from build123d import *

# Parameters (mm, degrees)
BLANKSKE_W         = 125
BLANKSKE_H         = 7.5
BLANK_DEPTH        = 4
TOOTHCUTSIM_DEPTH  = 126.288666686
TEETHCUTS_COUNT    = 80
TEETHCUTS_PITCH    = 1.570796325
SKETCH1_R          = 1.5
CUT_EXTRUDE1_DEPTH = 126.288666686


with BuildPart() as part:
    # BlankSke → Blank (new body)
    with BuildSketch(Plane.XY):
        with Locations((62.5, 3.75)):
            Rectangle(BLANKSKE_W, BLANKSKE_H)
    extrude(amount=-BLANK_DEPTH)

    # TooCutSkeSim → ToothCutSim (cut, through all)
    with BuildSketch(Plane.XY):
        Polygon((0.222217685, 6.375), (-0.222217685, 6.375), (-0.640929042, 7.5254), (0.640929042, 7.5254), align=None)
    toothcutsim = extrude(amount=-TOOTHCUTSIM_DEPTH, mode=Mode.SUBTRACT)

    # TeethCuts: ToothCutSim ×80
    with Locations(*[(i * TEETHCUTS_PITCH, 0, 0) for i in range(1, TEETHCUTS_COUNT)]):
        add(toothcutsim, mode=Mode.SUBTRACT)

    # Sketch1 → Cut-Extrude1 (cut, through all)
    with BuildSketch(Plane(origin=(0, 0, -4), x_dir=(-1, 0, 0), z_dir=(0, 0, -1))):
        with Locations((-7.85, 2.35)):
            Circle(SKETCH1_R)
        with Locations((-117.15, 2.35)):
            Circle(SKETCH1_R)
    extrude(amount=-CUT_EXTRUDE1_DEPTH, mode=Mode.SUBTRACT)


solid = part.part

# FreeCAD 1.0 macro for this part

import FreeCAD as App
import Part
import Sketcher
Q = App.Units.Quantity

doc = App.newDocument("Part")
body = doc.addObject("PartDesign::Body", "Body")

sketch1 = body.newObject("Sketcher::SketchObject", "Sketch")
sketch1.AttachmentSupport = (doc.getObject("XY_Plane"), [""])
sketch1.MapMode = "FlatFace"
sketch1.addGeometry(Part.LineSegment(App.Vector(0, 7.5, 0), App.Vector(0, 0, 0)), False)
sketch1.addGeometry(Part.LineSegment(App.Vector(0, 0, 0), App.Vector(125, 0, 0)), False)
sketch1.addGeometry(Part.LineSegment(App.Vector(125, 0, 0), App.Vector(125, 7.5, 0)), False)
sketch1.addGeometry(Part.LineSegment(App.Vector(125, 7.5, 0), App.Vector(0, 7.5, 0)), False)
sketch1.addConstraint(Sketcher.Constraint("Coincident", 0, 2, 1, 1))
sketch1.addConstraint(Sketcher.Constraint("Coincident", 1, 2, 2, 1))
sketch1.addConstraint(Sketcher.Constraint("Coincident", 2, 2, 3, 1))
sketch1.addConstraint(Sketcher.Constraint("Coincident", 3, 2, 0, 1))
sketch1.addConstraint(Sketcher.Constraint("Vertical", 0))
sketch1.addConstraint(Sketcher.Constraint("Horizontal", 1))
sketch1.addConstraint(Sketcher.Constraint("Vertical", 2))
sketch1.addConstraint(Sketcher.Constraint("Horizontal", 3))
sketch1.addConstraint(Sketcher.Constraint("Coincident", 0, 2, -1, 1))
sketch1.addConstraint(Sketcher.Constraint("DistanceX", 1, 1, 1, 2, Q("125 mm")))
sketch1.addConstraint(Sketcher.Constraint("DistanceY", 0, 2, 0, 1, Q("7.5 mm")))
pad1 = body.newObject("PartDesign::Pad", "Pad")
pad1.Profile = sketch1
pad1.Length = 4
pad1.Reversed = True

sketch2 = body.newObject("Sketcher::SketchObject", "Sketch001")
sketch2.AttachmentSupport = (doc.getObject("XY_Plane"), [""])
sketch2.MapMode = "FlatFace"
sketch2.addGeometry(Part.LineSegment(App.Vector(-0.222218, 6.375, 0), App.Vector(0.222218, 6.375, 0)), False)
sketch2.addGeometry(Part.LineSegment(App.Vector(0.222218, 6.375, 0), App.Vector(0.640929, 7.5254, 0)), False)
sketch2.addGeometry(Part.LineSegment(App.Vector(0.640929, 7.5254, 0), App.Vector(-0.640929, 7.5254, 0)), False)
sketch2.addGeometry(Part.LineSegment(App.Vector(-0.640929, 7.5254, 0), App.Vector(-0.222218, 6.375, 0)), False)
sketch2.addConstraint(Sketcher.Constraint("Coincident", 0, 2, 1, 1))
sketch2.addConstraint(Sketcher.Constraint("Coincident", 1, 2, 2, 1))
sketch2.addConstraint(Sketcher.Constraint("Coincident", 2, 2, 3, 1))
sketch2.addConstraint(Sketcher.Constraint("Coincident", 3, 2, 0, 1))
sketch2.addConstraint(Sketcher.Constraint("Horizontal", 0))
sketch2.addConstraint(Sketcher.Constraint("Horizontal", 2))
sketch2.addConstraint(Sketcher.Constraint("Equal", 1, 3))
sketch2.addConstraint(Sketcher.Constraint("Angle", 1, Q("70 deg")))
sketch2.addConstraint(Sketcher.Constraint("DistanceY", -1, 1, 0, 2, Q("6.375 mm")))
sketch2.addConstraint(Sketcher.Constraint("DistanceX", 2, 2, 2, 1, Q("1.281858 mm")))
sketch2.addConstraint(Sketcher.Constraint("DistanceY", -1, 1, 1, 2, Q("7.5254 mm")))
sketch2.addConstraint(Sketcher.Constraint("DistanceX", -1, 1, 1, 2, Q("0.640929 mm")))
pocket1 = body.newObject("PartDesign::Pocket", "Pocket")
pocket1.Profile = sketch2
pocket1.Type = "ThroughAll"
doc.recompute()

linearpattern = body.newObject("PartDesign::LinearPattern", "LinearPattern")
linearpattern.Originals = [pocket1]
linearpattern.Direction = (doc.getObject("X_Axis"), [""])
linearpattern.Mode = "offset"
linearpattern.Offset = 1.570796
linearpattern.Occurrences = 80
body.Tip = linearpattern

sketch3 = body.newObject("Sketcher::SketchObject", "Sketch002")
sketch3.AttachmentSupport = (doc.getObject("XY_Plane"), [""])
sketch3.MapMode = "FlatFace"
sketch3.AttachmentOffset = App.Placement(App.Vector(0, 0, -4), App.Rotation())
sketch3.addGeometry(Part.Circle(App.Vector(7.85, 2.35, 0), App.Vector(0, 0, 1), 1.5), False)
sketch3.addGeometry(Part.Circle(App.Vector(117.15, 2.35, 0), App.Vector(0, 0, 1), 1.5), False)
sketch3.addConstraint(Sketcher.Constraint("Equal", 0, 1))
sketch3.addConstraint(Sketcher.Constraint("Horizontal", 0, 3, 1, 3))
sketch3.addConstraint(Sketcher.Constraint("Diameter", 0, Q("3 mm")))
sketch3.addConstraint(Sketcher.Constraint("DistanceX", 0, 3, 1, 3, Q("109.3 mm")))
sketch3.addConstraint(Sketcher.Constraint("DistanceX", -1, 1, 0, 3, Q("7.85 mm")))
sketch3.addConstraint(Sketcher.Constraint("DistanceY", -1, 1, 0, 3, Q("2.35 mm")))
pocket2 = body.newObject("PartDesign::Pocket", "Pocket001")
pocket2.Profile = sketch3
pocket2.Type = "ThroughAll"
pocket2.Reversed = True

doc.recompute()
